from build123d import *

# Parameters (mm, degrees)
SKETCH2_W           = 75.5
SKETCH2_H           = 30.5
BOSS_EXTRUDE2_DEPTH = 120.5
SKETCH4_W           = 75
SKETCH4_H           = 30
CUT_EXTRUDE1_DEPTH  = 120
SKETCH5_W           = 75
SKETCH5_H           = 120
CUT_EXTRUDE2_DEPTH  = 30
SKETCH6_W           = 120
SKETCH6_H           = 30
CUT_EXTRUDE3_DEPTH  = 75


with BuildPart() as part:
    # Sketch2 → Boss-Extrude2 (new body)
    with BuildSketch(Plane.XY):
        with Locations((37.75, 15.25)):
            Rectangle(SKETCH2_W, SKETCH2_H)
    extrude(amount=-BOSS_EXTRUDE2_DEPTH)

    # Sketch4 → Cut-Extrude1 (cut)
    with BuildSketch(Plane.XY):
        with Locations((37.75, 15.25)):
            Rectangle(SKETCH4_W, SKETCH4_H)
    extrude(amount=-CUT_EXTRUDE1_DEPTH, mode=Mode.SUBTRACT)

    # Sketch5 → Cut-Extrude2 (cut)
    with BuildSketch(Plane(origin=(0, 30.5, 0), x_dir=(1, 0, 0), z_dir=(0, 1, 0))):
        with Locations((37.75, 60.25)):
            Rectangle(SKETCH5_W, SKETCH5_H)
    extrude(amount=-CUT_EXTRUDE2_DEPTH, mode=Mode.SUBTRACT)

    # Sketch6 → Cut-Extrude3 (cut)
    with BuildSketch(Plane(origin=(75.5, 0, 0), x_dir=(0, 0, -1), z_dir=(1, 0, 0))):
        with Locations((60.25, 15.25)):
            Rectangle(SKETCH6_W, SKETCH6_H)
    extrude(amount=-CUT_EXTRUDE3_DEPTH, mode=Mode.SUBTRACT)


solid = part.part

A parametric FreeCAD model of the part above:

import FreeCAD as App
import Part
import Sketcher

doc = App.newDocument("Part")
body = doc.addObject("PartDesign::Body", "Body")

# Sketch on XY plane
sketch1 = body.newObject("Sketcher::SketchObject", "Sketch")
sketch1.AttachmentSupport = (doc.getObject("XY_Plane"), [""])
sketch1.MapMode = "FlatFace"
sketch1.addGeometry([
    Part.LineSegment(App.Vector(0, 30, 0), App.Vector(0, 0, 0)),
    Part.LineSegment(App.Vector(0, 0, 0), App.Vector(76, 0, 0)),
    Part.LineSegment(App.Vector(76, 0, 0), App.Vector(76, 30, 0)),
    Part.LineSegment(App.Vector(76, 30, 0), App.Vector(0, 30, 0)),
], False)
sketch1.addConstraint([
    Sketcher.Constraint("Coincident", 0, 2, 1, 1),
    Sketcher.Constraint("Coincident", 1, 2, 2, 1),
    Sketcher.Constraint("Coincident", 2, 2, 3, 1),
    Sketcher.Constraint("Coincident", 3, 2, 0, 1),
    Sketcher.Constraint("Vertical", 0),
    Sketcher.Constraint("Horizontal", 1),
    Sketcher.Constraint("Vertical", 2),
    Sketcher.Constraint("Horizontal", 3),
    Sketcher.Constraint("Coincident", 0, 2, -1, 1),
    Sketcher.Constraint("DistanceX", 1, 1, 1, 2, 75.5),
    Sketcher.Constraint("DistanceY", 0, 2, 0, 1, 30.5),
])
pad1 = body.newObject("PartDesign::Pad", "Pad")
pad1.Profile = sketch1
pad1.Length = 120.5
pad1.Reversed = True

# Sketch on XY plane
sketch2 = body.newObject("Sketcher::SketchObject", "Sketch001")
sketch2.AttachmentSupport = (doc.getObject("XY_Plane"), [""])
sketch2.MapMode = "FlatFace"
sketch2.addGeometry([
    Part.LineSegment(App.Vector(0, 30, 0), App.Vector(0, 0, 0)),
    Part.LineSegment(App.Vector(0, 0, 0), App.Vector(75, 0, 0)),
    Part.LineSegment(App.Vector(75, 0, 0), App.Vector(75, 30, 0)),
    Part.LineSegment(App.Vector(75, 30, 0), App.Vector(0, 30, 0)),
], False)
sketch2.addConstraint([
    Sketcher.Constraint("Coincident", 0, 2, 1, 1),
    Sketcher.Constraint("Coincident", 1, 2, 2, 1),
    Sketcher.Constraint("Coincident", 2, 2, 3, 1),
    Sketcher.Constraint("Coincident", 3, 2, 0, 1),
    Sketcher.Constraint("Vertical", 0),
    Sketcher.Constraint("Horizontal", 1),
    Sketcher.Constraint("Vertical", 2),
    Sketcher.Constraint("Horizontal", 3),
    Sketcher.Constraint("DistanceX", 1, 1, 1, 2, 75.0),
    Sketcher.Constraint("DistanceY", 0, 2, 0, 1, 30.0),
    Sketcher.Constraint("DistanceX", -1, 1, 0, 2, 0.25),
    Sketcher.Constraint("DistanceY", -1, 1, 0, 2, 0.25),
])
pocket1 = body.newObject("PartDesign::Pocket", "Pocket")
pocket1.Profile = sketch2
pocket1.Length = 120

# Sketch on XZ plane
sketch3 = body.newObject("Sketcher::SketchObject", "Sketch002")
sketch3.AttachmentSupport = (doc.getObject("XZ_Plane"), [""])
sketch3.MapMode = "FlatFace"
sketch3.AttachmentOffset = App.Placement(App.Vector(0, 0, -30.5), App.Rotation())
sketch3.addGeometry([
    Part.LineSegment(App.Vector(0, -120, 0), App.Vector(0, 0, 0)),
    Part.LineSegment(App.Vector(0, 0, 0), App.Vector(75, 0, 0)),
    Part.LineSegment(App.Vector(75, 0, 0), App.Vector(75, -120, 0)),
    Part.LineSegment(App.Vector(75, -120, 0), App.Vector(0, -120, 0)),
], False)
sketch3.addConstraint([
    Sketcher.Constraint("Coincident", 0, 2, 1, 1),
    Sketcher.Constraint("Coincident", 1, 2, 2, 1),
    Sketcher.Constraint("Coincident", 2, 2, 3, 1),
    Sketcher.Constraint("Coincident", 3, 2, 0, 1),
    Sketcher.Constraint("Vertical", 0),
    Sketcher.Constraint("Horizontal", 1),
    Sketcher.Constraint("Vertical", 2),
    Sketcher.Constraint("Horizontal", 3),
    Sketcher.Constraint("DistanceX", 1, 1, 1, 2, 75.0),
    Sketcher.Constraint("DistanceY", 0, 1, 0, 2, 120.0),
    Sketcher.Constraint("DistanceX", -1, 1, 0, 2, 0.25),
    Sketcher.Constraint("DistanceY", 0, 2, -1, 1, 0.25),
])
pocket2 = body.newObject("PartDesign::Pocket", "Pocket001")
pocket2.Profile = sketch3
pocket2.Length = 30
pocket2.Reversed = True

# Sketch on YZ plane
sketch4 = body.newObject("Sketcher::SketchObject", "Sketch003")
sketch4.AttachmentSupport = (doc.getObject("YZ_Plane"), [""])
sketch4.MapMode = "FlatFace"
sketch4.AttachmentOffset = App.Placement(App.Vector(0, 0, 75.5), App.Rotation())
sketch4.addGeometry([
    Part.LineSegment(App.Vector(30, 0, 0), App.Vector(0, 0, 0)),
    Part.LineSegment(App.Vector(0, 0, 0), App.Vector(0, -120, 0)),
    Part.LineSegment(App.Vector(0, -120, 0), App.Vector(30, -120, 0)),
    Part.LineSegment(App.Vector(30, -120, 0), App.Vector(30, 0, 0)),
], False)
sketch4.addConstraint([
    Sketcher.Constraint("Coincident", 0, 2, 1, 1),
    Sketcher.Constraint("Coincident", 1, 2, 2, 1),
    Sketcher.Constraint("Coincident", 2, 2, 3, 1),
    Sketcher.Constraint("Coincident", 3, 2, 0, 1),
    Sketcher.Constraint("Horizontal", 0),
    Sketcher.Constraint("Vertical", 1),
    Sketcher.Constraint("Horizontal", 2),
    Sketcher.Constraint("Vertical", 3),
    Sketcher.Constraint("DistanceX", 0, 2, 0, 1, 30.0),
    Sketcher.Constraint("DistanceY", 1, 2, 1, 1, 120.0),
    Sketcher.Constraint("DistanceX", -1, 1, 0, 2, 0.25),
    Sketcher.Constraint("DistanceY", 0, 2, -1, 1, 0.25),
])
pocket3 = body.newObject("PartDesign::Pocket", "Pocket002")
pocket3.Profile = sketch4
pocket3.Length = 75

doc.recompute()
